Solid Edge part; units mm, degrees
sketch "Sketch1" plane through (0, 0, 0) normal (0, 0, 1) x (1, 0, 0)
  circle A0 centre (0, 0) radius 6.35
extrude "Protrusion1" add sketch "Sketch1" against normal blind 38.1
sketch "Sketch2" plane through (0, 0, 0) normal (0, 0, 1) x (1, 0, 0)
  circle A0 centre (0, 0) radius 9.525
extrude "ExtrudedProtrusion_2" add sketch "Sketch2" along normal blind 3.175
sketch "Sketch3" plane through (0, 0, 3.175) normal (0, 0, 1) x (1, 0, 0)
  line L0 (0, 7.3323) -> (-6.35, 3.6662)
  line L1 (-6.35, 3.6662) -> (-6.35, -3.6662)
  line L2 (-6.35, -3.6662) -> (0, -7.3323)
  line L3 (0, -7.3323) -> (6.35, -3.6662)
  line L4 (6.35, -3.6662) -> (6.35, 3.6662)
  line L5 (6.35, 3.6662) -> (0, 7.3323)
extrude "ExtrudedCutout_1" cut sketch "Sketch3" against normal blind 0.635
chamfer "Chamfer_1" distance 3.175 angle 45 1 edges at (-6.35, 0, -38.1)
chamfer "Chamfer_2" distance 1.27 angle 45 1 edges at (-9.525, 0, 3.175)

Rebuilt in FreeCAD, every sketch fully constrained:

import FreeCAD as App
import Part
import Sketcher

V = App.Vector
Q = App.Units.Quantity


def edges_at(feature, points):
    """Names of the edges that pass closest to the given points."""
    edges = feature.Shape.Edges
    near = lambda p: min(range(len(edges)), key=lambda i: edges[i].distToShape(Part.Vertex(*p))[0])
    return sorted({f"Edge{near(p) + 1}" for p in points})

doc = App.newDocument("Part")
body = doc.addObject("PartDesign::Body", "Body")

sketch1 = doc.addObject("Sketcher::SketchObject", "Sketch")
body.addObject(sketch1)
sketch1.AttachmentSupport = (doc.XY_Plane, [""])
sketch1.MapMode = "FlatFace"
sketch1.addGeometry(Part.Circle(V(0, 0, 0), V(0, 0, 1), 6), False)
sketch1.addConstraint([
    Sketcher.Constraint("Coincident", 0, 3, -1, 1),
    Sketcher.Constraint("Diameter", 0, Q("0.5 in")),
])
pad1 = doc.addObject("PartDesign::Pad", "Pad")
body.addObject(pad1)
pad1.Profile = sketch1
pad1.Length = Q("1.5 in")
pad1.Reversed = True

sketch2 = doc.addObject("Sketcher::SketchObject", "Sketch001")
body.addObject(sketch2)
sketch2.AttachmentSupport = (doc.XY_Plane, [""])
sketch2.MapMode = "FlatFace"
sketch2.addGeometry(Part.Circle(V(0, 0, 0), V(0, 0, 1), 10), False)
sketch2.addConstraint([
    Sketcher.Constraint("Coincident", 0, 3, -1, 1),
    Sketcher.Constraint("Diameter", 0, Q("0.75 in")),
])
pad2 = doc.addObject("PartDesign::Pad", "Pad001")
body.addObject(pad2)
pad2.Profile = sketch2
pad2.Length = Q("0.125 in")

sketch3 = doc.addObject("Sketcher::SketchObject", "Sketch002")
body.addObject(sketch3)
sketch3.AttachmentSupport = (doc.XY_Plane, [""])
sketch3.MapMode = "FlatFace"
sketch3.AttachmentOffset = App.Placement(V(0, 0, 0.125 * 25.4), App.Rotation())
sketch3.addGeometry([
    Part.LineSegment(V(6, 4, 0), V(0, 7, 0)),
    Part.LineSegment(V(0, 7, 0), V(-6, 4, 0)),
    Part.LineSegment(V(-6, 4, 0), V(-6, -4, 0)),
    Part.LineSegment(V(-6, -4, 0), V(0, -7, 0)),
    Part.LineSegment(V(0, -7, 0), V(6, -4, 0)),
    Part.LineSegment(V(6, -4, 0), V(6, 4, 0)),
], False)
sketch3.addConstraint([
    Sketcher.Constraint("Coincident", 0, 2, 1, 1),
    Sketcher.Constraint("Coincident", 1, 2, 2, 1),
    Sketcher.Constraint("Coincident", 2, 2, 3, 1),
    Sketcher.Constraint("Coincident", 3, 2, 4, 1),
    Sketcher.Constraint("Coincident", 4, 2, 5, 1),
    Sketcher.Constraint("Coincident", 5, 2, 0, 1),
    Sketcher.Constraint("Vertical", 2),
    Sketcher.Constraint("Vertical", 5),
    Sketcher.Constraint("Symmetric", 0, 2, 3, 2, -1, 1),
    Sketcher.Constraint("Symmetric", 1, 2, 4, 2, -1, 1),
    Sketcher.Constraint("PointOnObject", 0, 2, -2),
    Sketcher.Constraint("Parallel", 0, 3),
    Sketcher.Constraint("Horizontal", 2, 2, 4, 2),
    Sketcher.Constraint("Angle", 0, Q("150.0005 deg")),
    Sketcher.Constraint("DistanceX", 2, 2, 4, 2, Q("0.5 in")),
    Sketcher.Constraint("DistanceY", 2, 2, 0, 2, Q("0.433 in")),
])
pocket1 = doc.addObject("PartDesign::Pocket", "Pocket")
body.addObject(pocket1)
pocket1.Profile = sketch3
pocket1.Length = Q("0.025 in")
doc.recompute()

chamfer = doc.addObject("PartDesign::Chamfer", "Chamfer")
body.addObject(chamfer)
chamfer.Base = (pocket1, edges_at(pocket1, [(-6.35, 0, -38.1)]))
chamfer.Size = Q("0.125 in")
doc.recompute()

chamfer2 = doc.addObject("PartDesign::Chamfer", "Chamfer001")
body.addObject(chamfer2)
chamfer2.Base = (chamfer, edges_at(chamfer, [(-9.525, 0, 3.175)]))
chamfer2.Size = Q("0.05 in")

doc.recompute()
